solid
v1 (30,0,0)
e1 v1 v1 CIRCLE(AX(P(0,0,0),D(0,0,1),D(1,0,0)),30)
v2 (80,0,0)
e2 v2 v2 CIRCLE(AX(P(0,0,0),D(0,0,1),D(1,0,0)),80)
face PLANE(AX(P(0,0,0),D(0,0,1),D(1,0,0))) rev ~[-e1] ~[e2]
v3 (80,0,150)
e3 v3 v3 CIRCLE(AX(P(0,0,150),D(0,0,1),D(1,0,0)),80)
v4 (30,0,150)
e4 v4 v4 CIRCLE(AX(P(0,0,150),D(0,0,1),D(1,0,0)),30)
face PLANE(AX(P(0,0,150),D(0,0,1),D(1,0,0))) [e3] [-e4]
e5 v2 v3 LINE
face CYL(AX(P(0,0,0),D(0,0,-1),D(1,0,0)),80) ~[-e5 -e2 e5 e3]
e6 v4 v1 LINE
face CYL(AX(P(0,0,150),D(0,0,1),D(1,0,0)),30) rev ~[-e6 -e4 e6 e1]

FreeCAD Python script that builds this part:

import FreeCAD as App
import Part
import Sketcher

doc = App.newDocument("Part")
params = doc.addObject("Spreadsheet::Sheet", "Params")
for row, (alias, value) in enumerate([
    ("sketch1_diameter", "160 mm"),
    ("pad1_length", "150 mm"),
    ("sketch2_diameter", "60 mm"),
    ("pocket1_length", "150 mm"),
], start=1):
    params.set(f"A{row}", alias)
    params.set(f"B{row}", "=" + value)
    params.setAlias(f"B{row}", alias)

body = doc.addObject("PartDesign::Body", "Body")

# Sketch on XY plane
sketch1 = doc.addObject("Sketcher::SketchObject", "Sketch")
body.addObject(sketch1)
sketch1.AttachmentSupport = (doc.XY_Plane, [""])
sketch1.MapMode = "FlatFace"
sketch1.addGeometry(Part.Circle(App.Vector(0, 0, 0), App.Vector(0, 0, 1), 80), False)
sketch1.addConstraint([
    Sketcher.Constraint("Coincident", 0, 3, -1, 1),
    Sketcher.Constraint("Diameter", 0, 160.0),
])
sketch1.setExpression("Constraints[1]", "Params.sketch1_diameter")
pad1 = doc.addObject("PartDesign::Pad", "Pad")
body.addObject(pad1)
pad1.Profile = sketch1
pad1.setExpression("Length", "Params.pad1_length")

# Sketch on XY plane
sketch2 = doc.addObject("Sketcher::SketchObject", "Sketch001")
body.addObject(sketch2)
sketch2.AttachmentSupport = (doc.XY_Plane, [""])
sketch2.MapMode = "FlatFace"
sketch2.AttachmentOffset = App.Placement(App.Vector(0, 0, 150), App.Rotation())
sketch2.addGeometry(Part.Circle(App.Vector(0, 0, 0), App.Vector(0, 0, 1), 30), False)
sketch2.addConstraint([
    Sketcher.Constraint("Coincident", 0, 3, -1, 1),
    Sketcher.Constraint("Diameter", 0, 60.0),
])
sketch2.setExpression("Constraints[1]", "Params.sketch2_diameter")
pocket1 = doc.addObject("PartDesign::Pocket", "Pocket")
body.addObject(pocket1)
pocket1.Profile = sketch2
pocket1.setExpression("Length", "Params.pocket1_length")

doc.recompute()
